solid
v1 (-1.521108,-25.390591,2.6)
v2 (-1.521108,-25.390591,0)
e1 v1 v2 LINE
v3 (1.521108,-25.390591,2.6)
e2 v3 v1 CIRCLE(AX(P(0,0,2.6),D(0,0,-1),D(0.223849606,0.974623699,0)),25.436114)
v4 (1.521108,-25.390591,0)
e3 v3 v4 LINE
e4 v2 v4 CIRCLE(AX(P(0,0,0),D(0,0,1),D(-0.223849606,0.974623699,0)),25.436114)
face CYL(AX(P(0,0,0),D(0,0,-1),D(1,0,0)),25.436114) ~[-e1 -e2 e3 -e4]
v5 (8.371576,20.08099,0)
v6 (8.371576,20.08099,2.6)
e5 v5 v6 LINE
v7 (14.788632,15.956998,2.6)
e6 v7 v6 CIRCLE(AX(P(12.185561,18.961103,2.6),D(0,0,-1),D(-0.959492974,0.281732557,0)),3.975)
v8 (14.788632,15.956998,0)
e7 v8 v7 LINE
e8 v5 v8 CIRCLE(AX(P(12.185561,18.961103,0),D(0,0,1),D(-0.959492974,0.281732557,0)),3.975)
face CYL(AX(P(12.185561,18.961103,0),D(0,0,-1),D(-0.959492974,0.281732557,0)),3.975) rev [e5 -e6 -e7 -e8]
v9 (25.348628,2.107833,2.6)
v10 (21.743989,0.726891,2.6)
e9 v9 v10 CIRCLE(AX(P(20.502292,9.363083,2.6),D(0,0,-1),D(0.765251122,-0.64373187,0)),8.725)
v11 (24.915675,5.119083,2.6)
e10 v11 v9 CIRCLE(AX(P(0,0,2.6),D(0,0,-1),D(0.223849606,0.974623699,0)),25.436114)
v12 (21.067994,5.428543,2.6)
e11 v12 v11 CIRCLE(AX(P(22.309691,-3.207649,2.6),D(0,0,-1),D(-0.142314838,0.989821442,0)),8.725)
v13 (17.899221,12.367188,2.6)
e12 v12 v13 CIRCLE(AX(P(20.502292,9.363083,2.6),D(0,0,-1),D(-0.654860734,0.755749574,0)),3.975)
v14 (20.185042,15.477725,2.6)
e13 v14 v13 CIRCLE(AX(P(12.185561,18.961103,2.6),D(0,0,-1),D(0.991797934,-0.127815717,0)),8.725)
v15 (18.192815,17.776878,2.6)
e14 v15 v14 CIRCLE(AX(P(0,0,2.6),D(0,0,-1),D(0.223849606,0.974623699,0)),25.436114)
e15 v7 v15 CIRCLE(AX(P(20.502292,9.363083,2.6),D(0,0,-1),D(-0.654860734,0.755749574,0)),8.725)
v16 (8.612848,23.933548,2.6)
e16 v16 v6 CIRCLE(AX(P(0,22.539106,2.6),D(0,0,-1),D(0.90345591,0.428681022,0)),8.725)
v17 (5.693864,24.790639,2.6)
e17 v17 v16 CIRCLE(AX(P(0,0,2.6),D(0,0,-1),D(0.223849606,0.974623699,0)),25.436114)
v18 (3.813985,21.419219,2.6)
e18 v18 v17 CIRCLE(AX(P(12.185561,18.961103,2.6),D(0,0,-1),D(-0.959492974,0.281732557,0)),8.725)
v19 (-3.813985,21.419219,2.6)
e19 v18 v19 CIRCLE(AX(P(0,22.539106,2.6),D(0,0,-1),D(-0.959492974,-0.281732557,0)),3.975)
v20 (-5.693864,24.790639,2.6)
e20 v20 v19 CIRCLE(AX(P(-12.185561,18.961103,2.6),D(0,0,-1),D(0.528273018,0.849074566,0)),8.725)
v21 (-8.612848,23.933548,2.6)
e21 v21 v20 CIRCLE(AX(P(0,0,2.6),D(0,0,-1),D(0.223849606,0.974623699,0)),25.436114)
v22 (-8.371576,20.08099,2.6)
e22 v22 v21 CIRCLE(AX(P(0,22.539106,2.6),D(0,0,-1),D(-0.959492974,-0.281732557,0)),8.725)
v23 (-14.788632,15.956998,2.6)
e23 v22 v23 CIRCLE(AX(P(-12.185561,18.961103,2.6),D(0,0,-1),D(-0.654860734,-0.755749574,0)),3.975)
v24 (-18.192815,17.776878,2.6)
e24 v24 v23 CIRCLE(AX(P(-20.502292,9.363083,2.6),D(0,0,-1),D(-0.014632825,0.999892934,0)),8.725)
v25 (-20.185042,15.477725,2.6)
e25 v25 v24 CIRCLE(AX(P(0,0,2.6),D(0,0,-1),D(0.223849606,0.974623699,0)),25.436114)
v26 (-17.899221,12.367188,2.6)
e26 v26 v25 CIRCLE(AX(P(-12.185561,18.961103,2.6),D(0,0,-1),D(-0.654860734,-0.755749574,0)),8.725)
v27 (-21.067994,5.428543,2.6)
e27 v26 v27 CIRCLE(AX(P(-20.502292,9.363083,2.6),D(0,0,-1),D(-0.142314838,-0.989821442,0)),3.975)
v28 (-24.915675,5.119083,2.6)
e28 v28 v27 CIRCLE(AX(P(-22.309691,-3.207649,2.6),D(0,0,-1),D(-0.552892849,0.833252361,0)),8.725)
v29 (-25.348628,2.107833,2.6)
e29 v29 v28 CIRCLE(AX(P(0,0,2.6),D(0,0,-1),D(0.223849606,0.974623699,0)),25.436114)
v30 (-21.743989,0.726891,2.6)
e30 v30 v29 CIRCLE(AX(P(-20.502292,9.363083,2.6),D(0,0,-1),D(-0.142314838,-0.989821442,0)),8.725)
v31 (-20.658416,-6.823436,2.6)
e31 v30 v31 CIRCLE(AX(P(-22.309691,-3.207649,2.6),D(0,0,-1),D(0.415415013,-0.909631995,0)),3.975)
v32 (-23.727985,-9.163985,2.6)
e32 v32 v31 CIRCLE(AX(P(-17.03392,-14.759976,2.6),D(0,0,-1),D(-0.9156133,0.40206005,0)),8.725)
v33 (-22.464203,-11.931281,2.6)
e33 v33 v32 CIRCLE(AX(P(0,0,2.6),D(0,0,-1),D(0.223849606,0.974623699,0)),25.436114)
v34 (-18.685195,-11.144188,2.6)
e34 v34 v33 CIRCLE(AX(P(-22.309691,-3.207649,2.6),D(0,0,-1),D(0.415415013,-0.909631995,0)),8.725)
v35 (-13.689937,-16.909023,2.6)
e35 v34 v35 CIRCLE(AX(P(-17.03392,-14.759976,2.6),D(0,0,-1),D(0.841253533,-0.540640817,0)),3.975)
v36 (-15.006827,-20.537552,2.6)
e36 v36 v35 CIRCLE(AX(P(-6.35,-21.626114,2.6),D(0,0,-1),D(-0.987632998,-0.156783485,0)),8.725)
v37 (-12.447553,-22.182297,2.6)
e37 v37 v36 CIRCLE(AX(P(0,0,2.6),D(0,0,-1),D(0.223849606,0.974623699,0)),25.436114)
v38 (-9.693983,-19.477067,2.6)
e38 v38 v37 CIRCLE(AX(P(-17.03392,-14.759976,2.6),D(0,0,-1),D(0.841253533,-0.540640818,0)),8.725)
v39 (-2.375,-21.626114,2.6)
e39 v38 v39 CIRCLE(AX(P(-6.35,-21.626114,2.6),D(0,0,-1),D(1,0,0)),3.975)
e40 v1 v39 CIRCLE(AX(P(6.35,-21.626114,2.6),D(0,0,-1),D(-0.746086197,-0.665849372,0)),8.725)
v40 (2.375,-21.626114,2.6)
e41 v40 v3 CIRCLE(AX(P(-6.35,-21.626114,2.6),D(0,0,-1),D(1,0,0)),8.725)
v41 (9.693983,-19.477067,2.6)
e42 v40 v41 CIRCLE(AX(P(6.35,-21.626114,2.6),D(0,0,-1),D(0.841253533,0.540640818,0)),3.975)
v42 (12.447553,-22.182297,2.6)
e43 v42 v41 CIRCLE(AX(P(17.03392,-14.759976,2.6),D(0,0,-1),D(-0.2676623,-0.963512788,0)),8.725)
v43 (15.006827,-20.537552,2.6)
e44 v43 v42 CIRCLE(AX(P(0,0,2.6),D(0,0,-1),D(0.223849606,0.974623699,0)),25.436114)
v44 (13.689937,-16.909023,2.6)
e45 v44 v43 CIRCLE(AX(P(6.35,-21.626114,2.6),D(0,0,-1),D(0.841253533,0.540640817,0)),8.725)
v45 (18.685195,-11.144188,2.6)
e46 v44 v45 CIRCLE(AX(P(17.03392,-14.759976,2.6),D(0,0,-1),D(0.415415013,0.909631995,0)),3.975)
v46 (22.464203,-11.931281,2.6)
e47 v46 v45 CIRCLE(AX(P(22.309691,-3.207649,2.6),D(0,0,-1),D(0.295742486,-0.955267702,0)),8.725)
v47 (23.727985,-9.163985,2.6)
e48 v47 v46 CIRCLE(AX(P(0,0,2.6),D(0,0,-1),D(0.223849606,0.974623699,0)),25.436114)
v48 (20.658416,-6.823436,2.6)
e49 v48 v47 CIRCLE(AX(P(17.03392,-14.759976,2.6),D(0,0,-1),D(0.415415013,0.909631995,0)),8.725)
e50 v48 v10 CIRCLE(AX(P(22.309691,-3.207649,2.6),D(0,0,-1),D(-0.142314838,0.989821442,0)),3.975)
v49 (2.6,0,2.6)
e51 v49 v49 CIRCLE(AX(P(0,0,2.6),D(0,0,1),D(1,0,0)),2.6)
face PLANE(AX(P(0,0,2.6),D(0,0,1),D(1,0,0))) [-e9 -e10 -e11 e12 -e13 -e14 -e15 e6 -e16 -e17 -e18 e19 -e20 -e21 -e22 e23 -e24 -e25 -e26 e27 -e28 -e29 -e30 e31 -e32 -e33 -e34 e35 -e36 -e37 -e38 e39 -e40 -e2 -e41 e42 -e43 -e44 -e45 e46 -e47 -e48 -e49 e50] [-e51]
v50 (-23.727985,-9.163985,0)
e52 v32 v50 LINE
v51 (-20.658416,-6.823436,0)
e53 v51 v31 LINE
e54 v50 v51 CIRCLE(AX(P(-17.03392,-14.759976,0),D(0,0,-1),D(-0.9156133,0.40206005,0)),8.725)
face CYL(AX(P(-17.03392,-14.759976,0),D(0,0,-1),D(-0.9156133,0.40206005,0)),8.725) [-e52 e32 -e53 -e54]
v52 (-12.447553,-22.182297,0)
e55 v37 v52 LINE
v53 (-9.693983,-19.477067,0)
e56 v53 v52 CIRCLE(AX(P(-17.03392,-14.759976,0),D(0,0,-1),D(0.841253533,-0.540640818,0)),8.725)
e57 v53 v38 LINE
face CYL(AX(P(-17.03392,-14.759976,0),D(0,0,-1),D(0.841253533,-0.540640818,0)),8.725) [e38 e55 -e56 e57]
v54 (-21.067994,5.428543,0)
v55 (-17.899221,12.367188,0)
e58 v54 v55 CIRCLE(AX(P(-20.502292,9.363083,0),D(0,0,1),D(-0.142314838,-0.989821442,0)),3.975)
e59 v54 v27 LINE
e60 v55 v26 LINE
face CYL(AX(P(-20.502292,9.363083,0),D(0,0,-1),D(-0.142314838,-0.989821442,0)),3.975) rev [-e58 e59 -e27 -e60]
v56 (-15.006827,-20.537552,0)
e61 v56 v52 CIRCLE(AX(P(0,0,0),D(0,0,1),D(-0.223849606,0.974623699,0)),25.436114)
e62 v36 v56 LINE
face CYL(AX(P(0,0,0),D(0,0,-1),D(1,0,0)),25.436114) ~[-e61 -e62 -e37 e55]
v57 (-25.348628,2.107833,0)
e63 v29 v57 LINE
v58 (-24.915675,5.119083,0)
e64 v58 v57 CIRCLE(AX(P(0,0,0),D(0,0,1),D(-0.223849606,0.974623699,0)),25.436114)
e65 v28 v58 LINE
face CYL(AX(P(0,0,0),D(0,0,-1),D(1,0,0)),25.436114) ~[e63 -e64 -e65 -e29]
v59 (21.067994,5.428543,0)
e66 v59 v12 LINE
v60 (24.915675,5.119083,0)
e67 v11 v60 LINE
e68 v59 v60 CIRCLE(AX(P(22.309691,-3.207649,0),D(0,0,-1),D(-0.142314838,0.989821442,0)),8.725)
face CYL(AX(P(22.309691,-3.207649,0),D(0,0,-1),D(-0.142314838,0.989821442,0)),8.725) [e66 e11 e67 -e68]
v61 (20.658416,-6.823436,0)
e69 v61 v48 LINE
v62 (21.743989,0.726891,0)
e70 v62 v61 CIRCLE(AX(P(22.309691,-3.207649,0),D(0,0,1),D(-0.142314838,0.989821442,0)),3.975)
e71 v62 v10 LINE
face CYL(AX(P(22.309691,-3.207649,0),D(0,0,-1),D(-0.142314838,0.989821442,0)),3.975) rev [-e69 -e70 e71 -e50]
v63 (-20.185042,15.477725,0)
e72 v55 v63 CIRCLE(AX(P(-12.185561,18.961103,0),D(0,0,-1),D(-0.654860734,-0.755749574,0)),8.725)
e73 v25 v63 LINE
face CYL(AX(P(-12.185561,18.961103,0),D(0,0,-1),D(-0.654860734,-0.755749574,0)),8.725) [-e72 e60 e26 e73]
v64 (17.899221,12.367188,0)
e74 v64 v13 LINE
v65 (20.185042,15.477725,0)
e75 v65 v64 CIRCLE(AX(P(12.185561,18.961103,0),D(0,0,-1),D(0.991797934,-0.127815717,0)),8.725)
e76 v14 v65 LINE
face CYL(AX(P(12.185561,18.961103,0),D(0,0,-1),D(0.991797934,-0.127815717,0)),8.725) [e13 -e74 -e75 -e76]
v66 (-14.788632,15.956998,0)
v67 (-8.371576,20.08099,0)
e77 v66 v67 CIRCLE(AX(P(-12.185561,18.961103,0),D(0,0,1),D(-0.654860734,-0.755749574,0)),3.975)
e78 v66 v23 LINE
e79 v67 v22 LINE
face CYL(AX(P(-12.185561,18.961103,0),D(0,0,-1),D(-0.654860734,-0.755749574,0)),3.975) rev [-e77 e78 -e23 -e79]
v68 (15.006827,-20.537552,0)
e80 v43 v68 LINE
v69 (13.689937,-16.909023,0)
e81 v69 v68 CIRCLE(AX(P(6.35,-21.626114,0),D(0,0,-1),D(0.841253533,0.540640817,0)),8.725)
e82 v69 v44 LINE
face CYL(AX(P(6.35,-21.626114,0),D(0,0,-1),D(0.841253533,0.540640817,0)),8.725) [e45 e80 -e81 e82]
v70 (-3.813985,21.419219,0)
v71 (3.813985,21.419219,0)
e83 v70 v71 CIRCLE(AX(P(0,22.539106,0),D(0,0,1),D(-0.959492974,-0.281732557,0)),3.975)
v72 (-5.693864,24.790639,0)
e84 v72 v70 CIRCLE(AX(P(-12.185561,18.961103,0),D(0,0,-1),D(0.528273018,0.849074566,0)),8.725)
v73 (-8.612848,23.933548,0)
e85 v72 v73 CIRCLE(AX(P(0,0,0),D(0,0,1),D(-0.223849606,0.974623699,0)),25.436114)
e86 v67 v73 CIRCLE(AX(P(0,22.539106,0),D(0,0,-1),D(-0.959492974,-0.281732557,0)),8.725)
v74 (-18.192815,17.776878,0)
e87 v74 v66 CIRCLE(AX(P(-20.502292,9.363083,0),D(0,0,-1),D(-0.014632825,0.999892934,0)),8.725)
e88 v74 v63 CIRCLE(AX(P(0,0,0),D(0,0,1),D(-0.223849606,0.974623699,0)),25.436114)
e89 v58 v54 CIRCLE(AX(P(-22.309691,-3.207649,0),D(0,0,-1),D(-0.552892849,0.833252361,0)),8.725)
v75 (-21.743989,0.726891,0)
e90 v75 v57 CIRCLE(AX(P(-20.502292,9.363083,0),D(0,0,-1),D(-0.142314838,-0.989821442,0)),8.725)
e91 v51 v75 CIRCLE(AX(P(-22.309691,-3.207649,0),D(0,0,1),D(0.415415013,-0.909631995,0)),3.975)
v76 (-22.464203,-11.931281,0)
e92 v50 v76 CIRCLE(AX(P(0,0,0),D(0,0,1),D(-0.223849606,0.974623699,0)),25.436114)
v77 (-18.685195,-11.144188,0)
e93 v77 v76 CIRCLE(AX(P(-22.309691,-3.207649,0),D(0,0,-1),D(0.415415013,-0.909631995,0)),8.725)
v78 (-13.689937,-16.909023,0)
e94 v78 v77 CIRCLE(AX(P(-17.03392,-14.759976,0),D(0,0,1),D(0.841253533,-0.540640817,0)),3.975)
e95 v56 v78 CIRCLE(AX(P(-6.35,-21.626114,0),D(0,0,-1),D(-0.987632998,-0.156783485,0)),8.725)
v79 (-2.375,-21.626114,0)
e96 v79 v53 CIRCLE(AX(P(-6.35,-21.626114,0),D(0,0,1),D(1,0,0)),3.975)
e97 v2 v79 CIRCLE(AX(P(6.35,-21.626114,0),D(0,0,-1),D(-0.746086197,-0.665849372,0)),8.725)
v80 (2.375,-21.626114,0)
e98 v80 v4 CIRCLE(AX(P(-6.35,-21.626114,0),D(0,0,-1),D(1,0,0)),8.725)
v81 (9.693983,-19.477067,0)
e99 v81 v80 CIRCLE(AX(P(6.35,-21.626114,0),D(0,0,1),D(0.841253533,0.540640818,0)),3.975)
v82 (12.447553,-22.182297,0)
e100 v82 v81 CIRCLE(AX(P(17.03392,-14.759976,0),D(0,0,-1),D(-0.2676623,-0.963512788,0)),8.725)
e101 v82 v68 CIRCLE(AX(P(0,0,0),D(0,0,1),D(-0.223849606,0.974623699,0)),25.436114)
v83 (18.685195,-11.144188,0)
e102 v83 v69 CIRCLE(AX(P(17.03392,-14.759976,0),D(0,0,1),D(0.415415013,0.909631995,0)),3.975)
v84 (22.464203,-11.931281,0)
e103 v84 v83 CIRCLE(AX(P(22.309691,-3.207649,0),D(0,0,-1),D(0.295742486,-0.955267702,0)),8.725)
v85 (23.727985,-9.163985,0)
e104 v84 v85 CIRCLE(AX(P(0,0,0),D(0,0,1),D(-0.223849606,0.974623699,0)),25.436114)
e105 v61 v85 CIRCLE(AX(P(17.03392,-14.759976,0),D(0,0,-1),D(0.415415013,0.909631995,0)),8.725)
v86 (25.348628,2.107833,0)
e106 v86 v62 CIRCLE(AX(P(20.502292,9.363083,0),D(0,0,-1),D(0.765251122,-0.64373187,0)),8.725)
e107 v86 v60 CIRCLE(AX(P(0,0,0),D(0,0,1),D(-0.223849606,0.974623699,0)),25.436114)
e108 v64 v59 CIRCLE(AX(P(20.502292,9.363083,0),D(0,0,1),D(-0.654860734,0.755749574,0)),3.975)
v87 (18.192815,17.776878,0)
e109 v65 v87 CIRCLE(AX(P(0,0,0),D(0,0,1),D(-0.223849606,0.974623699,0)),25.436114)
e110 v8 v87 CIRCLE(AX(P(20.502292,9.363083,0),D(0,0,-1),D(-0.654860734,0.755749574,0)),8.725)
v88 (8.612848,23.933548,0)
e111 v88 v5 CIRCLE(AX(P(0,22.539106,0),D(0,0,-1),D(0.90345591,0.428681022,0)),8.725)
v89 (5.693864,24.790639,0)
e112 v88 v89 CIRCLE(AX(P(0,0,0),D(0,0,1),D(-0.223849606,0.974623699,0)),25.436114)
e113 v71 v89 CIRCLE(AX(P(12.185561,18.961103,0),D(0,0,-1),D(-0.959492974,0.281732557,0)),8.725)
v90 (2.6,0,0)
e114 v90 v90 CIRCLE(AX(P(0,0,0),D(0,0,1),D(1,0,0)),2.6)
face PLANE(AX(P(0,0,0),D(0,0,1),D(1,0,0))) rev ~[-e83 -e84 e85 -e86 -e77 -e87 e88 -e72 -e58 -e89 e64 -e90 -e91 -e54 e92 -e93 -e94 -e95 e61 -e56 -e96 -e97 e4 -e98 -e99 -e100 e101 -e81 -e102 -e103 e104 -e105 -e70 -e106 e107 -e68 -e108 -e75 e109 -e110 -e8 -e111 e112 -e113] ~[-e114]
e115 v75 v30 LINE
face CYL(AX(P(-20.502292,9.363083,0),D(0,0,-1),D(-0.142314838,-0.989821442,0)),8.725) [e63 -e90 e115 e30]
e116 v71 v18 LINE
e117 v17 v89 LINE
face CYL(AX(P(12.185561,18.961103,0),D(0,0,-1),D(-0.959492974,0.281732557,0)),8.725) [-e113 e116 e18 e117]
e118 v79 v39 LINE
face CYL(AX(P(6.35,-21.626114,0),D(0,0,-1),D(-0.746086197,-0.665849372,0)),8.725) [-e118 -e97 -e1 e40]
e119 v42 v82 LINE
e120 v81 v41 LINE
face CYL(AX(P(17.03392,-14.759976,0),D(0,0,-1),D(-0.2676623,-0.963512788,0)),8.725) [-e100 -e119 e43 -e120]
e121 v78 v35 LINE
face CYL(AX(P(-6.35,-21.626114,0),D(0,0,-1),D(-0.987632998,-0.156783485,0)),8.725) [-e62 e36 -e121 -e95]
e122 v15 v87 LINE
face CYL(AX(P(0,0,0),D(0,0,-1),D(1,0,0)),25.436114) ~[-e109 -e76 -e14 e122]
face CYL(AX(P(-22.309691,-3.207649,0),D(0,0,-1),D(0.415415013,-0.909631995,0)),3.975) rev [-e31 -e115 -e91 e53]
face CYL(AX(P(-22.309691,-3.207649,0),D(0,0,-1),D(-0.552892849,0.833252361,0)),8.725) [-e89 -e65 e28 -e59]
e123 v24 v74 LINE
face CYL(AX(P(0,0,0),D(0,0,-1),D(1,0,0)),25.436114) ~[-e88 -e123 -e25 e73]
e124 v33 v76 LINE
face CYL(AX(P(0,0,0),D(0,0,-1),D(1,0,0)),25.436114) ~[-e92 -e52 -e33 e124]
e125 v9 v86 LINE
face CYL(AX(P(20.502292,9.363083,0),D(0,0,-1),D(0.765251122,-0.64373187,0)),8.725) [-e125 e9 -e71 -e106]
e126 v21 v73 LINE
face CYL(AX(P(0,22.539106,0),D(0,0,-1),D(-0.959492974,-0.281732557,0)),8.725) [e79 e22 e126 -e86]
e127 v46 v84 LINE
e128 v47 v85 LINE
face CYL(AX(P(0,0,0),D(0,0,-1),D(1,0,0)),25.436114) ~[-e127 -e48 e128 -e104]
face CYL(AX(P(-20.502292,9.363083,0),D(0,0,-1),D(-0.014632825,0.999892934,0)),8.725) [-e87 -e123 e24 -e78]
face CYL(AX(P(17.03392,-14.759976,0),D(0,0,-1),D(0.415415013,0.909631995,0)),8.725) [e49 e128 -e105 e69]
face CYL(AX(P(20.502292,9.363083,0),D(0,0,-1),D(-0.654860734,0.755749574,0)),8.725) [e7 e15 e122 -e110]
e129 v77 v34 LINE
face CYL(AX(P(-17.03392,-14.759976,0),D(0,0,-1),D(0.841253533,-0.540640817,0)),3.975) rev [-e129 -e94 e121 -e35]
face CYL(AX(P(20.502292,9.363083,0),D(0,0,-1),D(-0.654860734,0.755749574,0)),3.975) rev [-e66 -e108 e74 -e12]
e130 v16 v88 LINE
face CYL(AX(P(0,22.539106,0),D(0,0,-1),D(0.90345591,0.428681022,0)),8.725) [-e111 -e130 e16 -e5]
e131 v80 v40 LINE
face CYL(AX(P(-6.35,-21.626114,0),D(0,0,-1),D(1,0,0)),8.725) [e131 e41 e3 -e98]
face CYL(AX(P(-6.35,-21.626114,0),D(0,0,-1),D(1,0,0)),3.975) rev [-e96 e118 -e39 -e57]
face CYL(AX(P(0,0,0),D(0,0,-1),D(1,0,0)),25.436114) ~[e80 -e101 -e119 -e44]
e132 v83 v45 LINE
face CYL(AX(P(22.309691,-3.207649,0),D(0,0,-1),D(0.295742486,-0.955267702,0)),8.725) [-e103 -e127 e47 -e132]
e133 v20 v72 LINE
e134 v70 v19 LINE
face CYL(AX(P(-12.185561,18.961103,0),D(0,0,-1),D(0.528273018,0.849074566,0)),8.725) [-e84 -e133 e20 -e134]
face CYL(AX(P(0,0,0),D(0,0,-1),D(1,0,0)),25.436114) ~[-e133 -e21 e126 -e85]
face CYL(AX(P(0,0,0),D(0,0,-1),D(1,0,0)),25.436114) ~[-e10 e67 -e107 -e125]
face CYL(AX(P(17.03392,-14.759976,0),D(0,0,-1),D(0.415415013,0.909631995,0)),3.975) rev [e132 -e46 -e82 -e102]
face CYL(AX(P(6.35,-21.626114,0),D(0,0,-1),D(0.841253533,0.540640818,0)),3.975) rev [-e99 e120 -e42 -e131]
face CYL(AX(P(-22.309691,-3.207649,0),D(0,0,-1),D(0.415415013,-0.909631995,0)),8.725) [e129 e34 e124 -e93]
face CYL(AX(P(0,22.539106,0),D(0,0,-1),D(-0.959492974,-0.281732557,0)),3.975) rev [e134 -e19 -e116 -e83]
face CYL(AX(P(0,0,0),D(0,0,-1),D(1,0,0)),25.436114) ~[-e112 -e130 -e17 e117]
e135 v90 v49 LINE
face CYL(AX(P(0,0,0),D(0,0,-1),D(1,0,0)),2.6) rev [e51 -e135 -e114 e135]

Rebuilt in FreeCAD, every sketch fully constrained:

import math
import FreeCAD as App
import Part
import Sketcher
from FreeCAD import Vector

doc = App.newDocument("Part")
body = doc.addObject("PartDesign::Body", "Body")

sketch1 = doc.addObject("Sketcher::SketchObject", "Sketch")
body.addObject(sketch1)
sketch1.AttachmentSupport = (doc.XY_Plane, [""])
sketch1.MapMode = "FlatFace"
sketch1.addGeometry(Part.Circle(Vector(0, 0, 0), Vector(0, 0, 1), 25.4), False)
sketch1.addGeometry(Part.Circle(Vector(0, 0, 0), Vector(0, 0, 1), 2.6), False)
sketch1.addConstraint(Sketcher.Constraint("Coincident", 0, 3, -1, 1))
sketch1.addConstraint(Sketcher.Constraint("Coincident", 1, 3, -1, 1))
sketch1.addConstraint(Sketcher.Constraint("Diameter", 1, 5.2))
sketch1.addConstraint(Sketcher.Constraint("Diameter", 0, 50.872228))
pad1 = doc.addObject("PartDesign::Pad", "Pad")
body.addObject(pad1)
pad1.Profile = sketch1
pad1.Length = 2.6

sketch2 = doc.addObject("Sketcher::SketchObject", "Sketch001")
body.addObject(sketch2)
sketch2.AttachmentSupport = (doc.XY_Plane, [""])
sketch2.MapMode = "FlatFace"
sketch2.addGeometry(Part.ArcOfCircle(Part.Circle(Vector(0, 22.5, 0), Vector(0, 0, 1), 4), math.radians(-164), math.radians(-16)), False)
sketch2.addGeometry(Part.ArcOfCircle(Part.Circle(Vector(12.2, 19, 0), Vector(0, 0, 1), 8.7), math.radians(122), math.radians(164)), False)
sketch2.addGeometry(Part.ArcOfCircle(Part.Circle(Vector(0, 0, 0), Vector(0, 0, 1), 27.4), math.radians(74), math.radians(106)), False)
sketch2.addGeometry(Part.ArcOfCircle(Part.Circle(Vector(-12.2, 19, 0), Vector(0, 0, 1), 8.7), math.radians(16), math.radians(58)), False)
sketch2.addConstraint(Sketcher.Constraint("Tangent", 0, 2, 1, 2))
sketch2.addConstraint(Sketcher.Constraint("Coincident", 1, 1, 2, 1))
sketch2.addConstraint(Sketcher.Constraint("Coincident", 2, 2, 3, 2))
sketch2.addConstraint(Sketcher.Constraint("Tangent", 3, 1, 0, 1))
sketch2.addConstraint(Sketcher.Constraint("Coincident", 2, 3, -1, 1))
sketch2.addConstraint(Sketcher.Constraint("Equal", 1, 3))
sketch2.addConstraint(Sketcher.Constraint("Symmetric", 1, 3, 3, 3, -2))
sketch2.addConstraint(Sketcher.Constraint("Radius", 0, 3.975))
sketch2.addConstraint(Sketcher.Constraint("Radius", 1, 8.725))
sketch2.addConstraint(Sketcher.Constraint("Radius", 2, 27.436114))
sketch2.addConstraint(Sketcher.Constraint("DistanceX", -1, 1, 1, 3, 12.185561))
sketch2.addConstraint(Sketcher.Constraint("DistanceY", -1, 1, 0, 2, 21.419219))
pocket1 = doc.addObject("PartDesign::Pocket", "Pocket")
body.addObject(pocket1)
pocket1.Profile = sketch2
pocket1.Type = "ThroughAll"
pocket1.Reversed = True
doc.recompute()

polarpattern = doc.addObject("PartDesign::PolarPattern", "PolarPattern")
body.addObject(polarpattern)
polarpattern.Originals = [pocket1]
polarpattern.Axis = (doc.Z_Axis, [""])
polarpattern.Angle = 360
polarpattern.Occurrences = 11
body.Tip = polarpattern

doc.recompute()
